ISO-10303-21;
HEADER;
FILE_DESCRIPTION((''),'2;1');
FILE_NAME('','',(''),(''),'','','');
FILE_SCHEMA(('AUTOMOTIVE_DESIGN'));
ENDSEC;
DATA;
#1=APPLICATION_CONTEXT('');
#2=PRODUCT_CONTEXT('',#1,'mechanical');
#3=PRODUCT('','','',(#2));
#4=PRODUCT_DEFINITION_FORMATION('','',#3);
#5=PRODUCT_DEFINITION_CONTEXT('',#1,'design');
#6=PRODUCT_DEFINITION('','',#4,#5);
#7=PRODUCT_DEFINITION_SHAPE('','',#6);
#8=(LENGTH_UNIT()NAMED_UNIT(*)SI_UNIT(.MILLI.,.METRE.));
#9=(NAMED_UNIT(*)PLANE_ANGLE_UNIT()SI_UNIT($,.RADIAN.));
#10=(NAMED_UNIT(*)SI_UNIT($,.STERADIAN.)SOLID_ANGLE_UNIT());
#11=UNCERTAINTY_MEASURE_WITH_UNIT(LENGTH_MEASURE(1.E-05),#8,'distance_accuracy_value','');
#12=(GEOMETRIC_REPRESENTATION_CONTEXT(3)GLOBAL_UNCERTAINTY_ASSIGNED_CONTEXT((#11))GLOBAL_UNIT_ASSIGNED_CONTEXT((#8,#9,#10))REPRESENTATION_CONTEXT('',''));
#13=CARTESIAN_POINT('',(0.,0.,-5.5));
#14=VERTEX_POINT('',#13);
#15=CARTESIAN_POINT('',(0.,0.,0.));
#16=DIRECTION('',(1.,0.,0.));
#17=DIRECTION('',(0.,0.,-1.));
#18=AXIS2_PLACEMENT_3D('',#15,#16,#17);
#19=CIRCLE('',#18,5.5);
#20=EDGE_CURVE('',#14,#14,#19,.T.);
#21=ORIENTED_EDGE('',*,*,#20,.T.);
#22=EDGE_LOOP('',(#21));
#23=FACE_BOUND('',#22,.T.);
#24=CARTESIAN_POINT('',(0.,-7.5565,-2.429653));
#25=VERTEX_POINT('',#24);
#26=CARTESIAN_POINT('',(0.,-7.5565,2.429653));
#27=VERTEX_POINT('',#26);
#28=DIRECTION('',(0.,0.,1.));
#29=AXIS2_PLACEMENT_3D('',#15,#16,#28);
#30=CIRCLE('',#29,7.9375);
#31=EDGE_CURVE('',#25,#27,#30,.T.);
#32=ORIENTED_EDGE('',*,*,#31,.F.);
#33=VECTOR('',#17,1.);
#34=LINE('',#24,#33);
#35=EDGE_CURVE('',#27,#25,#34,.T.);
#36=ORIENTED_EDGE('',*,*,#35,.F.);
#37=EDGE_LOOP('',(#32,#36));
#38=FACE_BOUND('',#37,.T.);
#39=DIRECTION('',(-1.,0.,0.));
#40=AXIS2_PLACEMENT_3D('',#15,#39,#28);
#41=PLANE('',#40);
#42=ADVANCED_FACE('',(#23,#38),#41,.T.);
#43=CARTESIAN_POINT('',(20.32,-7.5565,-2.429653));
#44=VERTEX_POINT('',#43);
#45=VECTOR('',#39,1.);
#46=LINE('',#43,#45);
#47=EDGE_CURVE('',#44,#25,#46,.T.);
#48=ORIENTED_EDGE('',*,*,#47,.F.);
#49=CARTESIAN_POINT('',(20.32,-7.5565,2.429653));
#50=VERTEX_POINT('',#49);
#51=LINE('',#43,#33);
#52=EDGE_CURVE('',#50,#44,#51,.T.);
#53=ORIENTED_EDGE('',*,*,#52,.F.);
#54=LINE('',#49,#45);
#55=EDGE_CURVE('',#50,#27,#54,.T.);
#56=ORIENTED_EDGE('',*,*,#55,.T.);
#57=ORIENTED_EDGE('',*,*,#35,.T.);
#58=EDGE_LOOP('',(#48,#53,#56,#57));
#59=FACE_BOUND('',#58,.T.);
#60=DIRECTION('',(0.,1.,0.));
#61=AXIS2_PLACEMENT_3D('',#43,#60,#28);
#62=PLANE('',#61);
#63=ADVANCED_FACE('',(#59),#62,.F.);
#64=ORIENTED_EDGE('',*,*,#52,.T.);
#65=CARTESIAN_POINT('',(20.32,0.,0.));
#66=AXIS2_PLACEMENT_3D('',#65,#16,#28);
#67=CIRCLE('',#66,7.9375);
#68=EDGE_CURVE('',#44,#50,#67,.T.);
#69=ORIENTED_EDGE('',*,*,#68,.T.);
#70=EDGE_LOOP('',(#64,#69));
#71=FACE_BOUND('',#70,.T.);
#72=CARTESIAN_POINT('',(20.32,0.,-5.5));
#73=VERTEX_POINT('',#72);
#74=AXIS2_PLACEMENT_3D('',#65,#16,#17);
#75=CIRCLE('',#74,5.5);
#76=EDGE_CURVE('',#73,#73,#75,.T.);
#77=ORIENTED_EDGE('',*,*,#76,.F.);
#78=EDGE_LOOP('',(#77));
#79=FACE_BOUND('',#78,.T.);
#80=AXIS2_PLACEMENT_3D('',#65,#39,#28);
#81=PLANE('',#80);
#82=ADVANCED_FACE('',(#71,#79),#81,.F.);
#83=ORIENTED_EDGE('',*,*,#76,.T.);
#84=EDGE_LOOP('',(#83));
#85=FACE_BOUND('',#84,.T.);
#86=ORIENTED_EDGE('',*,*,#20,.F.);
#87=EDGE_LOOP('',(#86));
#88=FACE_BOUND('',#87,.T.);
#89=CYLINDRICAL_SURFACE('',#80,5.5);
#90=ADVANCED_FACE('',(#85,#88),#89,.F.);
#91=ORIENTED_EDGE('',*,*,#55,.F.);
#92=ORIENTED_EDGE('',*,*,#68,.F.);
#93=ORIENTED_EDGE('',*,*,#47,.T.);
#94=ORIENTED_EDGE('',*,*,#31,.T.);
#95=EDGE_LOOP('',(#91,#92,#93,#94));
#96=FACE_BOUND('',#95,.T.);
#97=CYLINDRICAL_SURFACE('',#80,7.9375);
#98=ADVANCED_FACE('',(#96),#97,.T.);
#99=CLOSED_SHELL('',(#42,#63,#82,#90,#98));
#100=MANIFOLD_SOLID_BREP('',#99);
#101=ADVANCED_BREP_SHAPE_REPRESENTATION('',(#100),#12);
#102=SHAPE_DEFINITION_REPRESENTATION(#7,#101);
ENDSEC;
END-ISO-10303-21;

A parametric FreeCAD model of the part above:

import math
import FreeCAD as App
import Part
import Sketcher

V = App.Vector
Q = App.Units.Quantity

doc = App.newDocument("Part")
body = doc.addObject("PartDesign::Body", "Body")

sketch1 = body.newObject("Sketcher::SketchObject", "Sketch")
sketch1.AttachmentSupport = (doc.getObject("YZ_Plane"), [""])
sketch1.MapMode = "FlatFace"
sketch1.addGeometry([
    Part.LineSegment(V(-7.6, 2.4, 0), V(-7.6, -2.4, 0)),
    Part.ArcOfCircle(Part.Circle(V(0, 0, 0), V(0, 0, 1), 7.9), math.radians(-162), math.radians(162)),
    Part.Circle(V(0, 0, 0), V(0, 0, 1), 5.5),
], False)
sketch1.addConstraint([
    Sketcher.Constraint("Coincident", 0, 1, 1, 2),
    Sketcher.Constraint("Coincident", 1, 1, 0, 2),
    Sketcher.Constraint("Vertical", 0),
    Sketcher.Constraint("Coincident", 1, 3, -1, 1),
    Sketcher.Constraint("Coincident", 2, 3, -1, 1),
    Sketcher.Constraint("Radius", 1, Q("0.3125 in")),
    Sketcher.Constraint("Diameter", 2, Q("11 mm")),
    Sketcher.Constraint("DistanceX", 0, 1, -1, 1, Q("0.2975 in")),
])
pad1 = body.newObject("PartDesign::Pad", "Pad")
pad1.Profile = sketch1
pad1.Length = Q("0.8 in")

doc.recompute()
